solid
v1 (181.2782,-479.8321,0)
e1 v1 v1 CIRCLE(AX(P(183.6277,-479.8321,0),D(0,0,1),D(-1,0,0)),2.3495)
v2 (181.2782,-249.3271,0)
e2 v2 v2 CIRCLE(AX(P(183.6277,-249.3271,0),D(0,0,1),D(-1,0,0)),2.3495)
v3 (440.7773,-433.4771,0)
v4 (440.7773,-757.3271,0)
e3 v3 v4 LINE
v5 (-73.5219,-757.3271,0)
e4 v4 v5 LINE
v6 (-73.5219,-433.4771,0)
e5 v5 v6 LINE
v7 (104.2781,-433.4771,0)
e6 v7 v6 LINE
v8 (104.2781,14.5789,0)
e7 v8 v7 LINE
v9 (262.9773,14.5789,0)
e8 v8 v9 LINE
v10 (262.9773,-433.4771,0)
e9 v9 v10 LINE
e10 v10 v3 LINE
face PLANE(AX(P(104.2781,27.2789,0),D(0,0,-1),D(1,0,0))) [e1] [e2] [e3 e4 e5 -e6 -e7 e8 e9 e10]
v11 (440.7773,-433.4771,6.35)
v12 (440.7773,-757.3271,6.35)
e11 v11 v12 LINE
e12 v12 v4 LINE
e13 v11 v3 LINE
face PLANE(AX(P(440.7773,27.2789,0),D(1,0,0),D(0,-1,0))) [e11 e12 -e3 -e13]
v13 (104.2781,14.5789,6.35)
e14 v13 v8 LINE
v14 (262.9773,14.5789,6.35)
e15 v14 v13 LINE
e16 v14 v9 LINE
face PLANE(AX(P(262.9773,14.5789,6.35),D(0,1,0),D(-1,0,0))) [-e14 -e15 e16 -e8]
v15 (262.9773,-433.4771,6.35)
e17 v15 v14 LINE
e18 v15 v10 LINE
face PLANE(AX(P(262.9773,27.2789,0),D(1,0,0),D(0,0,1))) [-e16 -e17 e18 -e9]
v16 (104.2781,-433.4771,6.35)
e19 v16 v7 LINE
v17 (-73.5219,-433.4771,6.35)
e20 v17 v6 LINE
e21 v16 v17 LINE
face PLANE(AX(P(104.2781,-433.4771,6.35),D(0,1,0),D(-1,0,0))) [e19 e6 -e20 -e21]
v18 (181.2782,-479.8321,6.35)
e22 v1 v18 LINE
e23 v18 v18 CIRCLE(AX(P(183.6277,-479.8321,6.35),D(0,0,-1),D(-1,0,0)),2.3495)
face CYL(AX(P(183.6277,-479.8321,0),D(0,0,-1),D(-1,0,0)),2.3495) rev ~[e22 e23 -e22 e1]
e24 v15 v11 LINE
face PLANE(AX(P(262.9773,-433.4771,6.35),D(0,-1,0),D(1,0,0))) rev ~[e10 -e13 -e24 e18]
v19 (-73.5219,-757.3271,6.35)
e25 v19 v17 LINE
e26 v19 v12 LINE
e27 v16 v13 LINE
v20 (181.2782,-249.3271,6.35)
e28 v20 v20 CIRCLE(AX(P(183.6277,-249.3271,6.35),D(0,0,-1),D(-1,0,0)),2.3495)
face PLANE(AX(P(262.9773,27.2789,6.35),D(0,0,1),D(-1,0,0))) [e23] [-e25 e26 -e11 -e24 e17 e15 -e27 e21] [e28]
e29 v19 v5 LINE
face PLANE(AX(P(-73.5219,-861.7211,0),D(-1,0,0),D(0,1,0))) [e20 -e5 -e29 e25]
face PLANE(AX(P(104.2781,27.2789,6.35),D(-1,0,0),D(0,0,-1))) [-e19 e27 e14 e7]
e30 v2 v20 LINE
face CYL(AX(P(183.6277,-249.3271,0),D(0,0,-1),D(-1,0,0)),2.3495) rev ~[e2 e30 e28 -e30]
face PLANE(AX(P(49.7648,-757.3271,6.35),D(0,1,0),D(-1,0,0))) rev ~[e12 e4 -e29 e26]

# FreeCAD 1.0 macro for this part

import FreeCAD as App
import Part
import Sketcher
from FreeCAD import Vector
Q = App.Units.Quantity

doc = App.newDocument("Part")
body = doc.addObject("PartDesign::Body", "Body")

sketch1 = body.newObject("Sketcher::SketchObject", "Sketch")
sketch1.AttachmentSupport = (doc.getObject("XY_Plane"), [""])
sketch1.MapMode = "FlatFace"
sketch1.addGeometry(Part.LineSegment(Vector(440.7773, 27.2789, 0), Vector(-73.5219, 27.2789, 0)), False)
sketch1.addGeometry(Part.LineSegment(Vector(-73.5219, 27.2789, 0), Vector(-73.5219, -861.7211, 0)), False)
sketch1.addGeometry(Part.LineSegment(Vector(-73.5219, -861.7211, 0), Vector(440.7773, -861.7211, 0)), False)
sketch1.addGeometry(Part.LineSegment(Vector(440.7773, -861.7211, 0), Vector(440.7773, 27.2789, 0)), False)
sketch1.addConstraint(Sketcher.Constraint("Coincident", 0, 2, 1, 1))
sketch1.addConstraint(Sketcher.Constraint("Coincident", 1, 2, 2, 1))
sketch1.addConstraint(Sketcher.Constraint("Coincident", 2, 2, 3, 1))
sketch1.addConstraint(Sketcher.Constraint("Coincident", 3, 2, 0, 1))
sketch1.addConstraint(Sketcher.Constraint("Horizontal", 0))
sketch1.addConstraint(Sketcher.Constraint("Vertical", 1))
sketch1.addConstraint(Sketcher.Constraint("Horizontal", 2))
sketch1.addConstraint(Sketcher.Constraint("Vertical", 3))
sketch1.addConstraint(Sketcher.Constraint("DistanceY", 1, 2, 1, 1, Q("35 in")))
sketch1.addConstraint(Sketcher.Constraint("DistanceX", 0, 2, 0, 1, Q("20.248 in")))
sketch1.addConstraint(Sketcher.Constraint("DistanceX", 0, 2, -1, 1, Q("73.522 mm")))
sketch1.addConstraint(Sketcher.Constraint("DistanceY", -1, 1, 0, 2, Q("27.279 mm")))
pad1 = body.newObject("PartDesign::Pad", "Pad")
pad1.Profile = sketch1
pad1.Length = Q("0.25 in")

sketch2 = body.newObject("Sketcher::SketchObject", "Sketch001")
sketch2.AttachmentSupport = (doc.getObject("XY_Plane"), [""])
sketch2.MapMode = "FlatFace"
sketch2.AttachmentOffset = App.Placement(Vector(0, 0, 0.25 * 25.4), App.Rotation())
sketch2.addGeometry(Part.LineSegment(Vector(104.2781, 27.2789, 0), Vector(-73.5219, 27.2789, 0)), False)
sketch2.addGeometry(Part.LineSegment(Vector(-73.5219, 27.2789, 0), Vector(-73.5219, -433.4771, 0)), False)
sketch2.addGeometry(Part.LineSegment(Vector(-73.5219, -433.4771, 0), Vector(104.2781, -433.4771, 0)), False)
sketch2.addGeometry(Part.LineSegment(Vector(104.2781, -433.4771, 0), Vector(104.2781, 27.2789, 0)), False)
sketch2.addGeometry(Part.LineSegment(Vector(440.7773, -433.4771, 0), Vector(440.7773, 27.2789, 0)), False)
sketch2.addGeometry(Part.LineSegment(Vector(440.7773, 27.2789, 0), Vector(262.9773, 27.2789, 0)), False)
sketch2.addGeometry(Part.LineSegment(Vector(262.9773, 27.2789, 0), Vector(262.9773, -433.4771, 0)), False)
sketch2.addGeometry(Part.LineSegment(Vector(262.9773, -433.4771, 0), Vector(440.7773, -433.4771, 0)), False)
sketch2.addConstraint(Sketcher.Constraint("Coincident", 0, 2, 1, 1))
sketch2.addConstraint(Sketcher.Constraint("Coincident", 1, 2, 2, 1))
sketch2.addConstraint(Sketcher.Constraint("Coincident", 2, 2, 3, 1))
sketch2.addConstraint(Sketcher.Constraint("Coincident", 3, 2, 0, 1))
sketch2.addConstraint(Sketcher.Constraint("Coincident", 4, 2, 5, 1))
sketch2.addConstraint(Sketcher.Constraint("Coincident", 5, 2, 6, 1))
sketch2.addConstraint(Sketcher.Constraint("Coincident", 6, 2, 7, 1))
sketch2.addConstraint(Sketcher.Constraint("Coincident", 7, 2, 4, 1))
sketch2.addConstraint(Sketcher.Constraint("Horizontal", 0))
sketch2.addConstraint(Sketcher.Constraint("Vertical", 1))
sketch2.addConstraint(Sketcher.Constraint("Horizontal", 2))
sketch2.addConstraint(Sketcher.Constraint("Vertical", 3))
sketch2.addConstraint(Sketcher.Constraint("Vertical", 4))
sketch2.addConstraint(Sketcher.Constraint("Horizontal", 5))
sketch2.addConstraint(Sketcher.Constraint("Vertical", 6))
sketch2.addConstraint(Sketcher.Constraint("Horizontal", 7))
sketch2.addConstraint(Sketcher.Constraint("Horizontal", 3, 2, 4, 2))
sketch2.addConstraint(Sketcher.Constraint("Horizontal", 2, 2, 6, 2))
sketch2.addConstraint(Sketcher.Constraint("Equal", 2, 5))
sketch2.addConstraint(Sketcher.Constraint("DistanceX", 0, 2, 0, 1, Q("7 in")))
sketch2.addConstraint(Sketcher.Constraint("DistanceY", 1, 2, 1, 1, Q("18.14 in")))
sketch2.addConstraint(Sketcher.Constraint("DistanceX", 3, 2, 4, 2, Q("13.248 in")))
sketch2.addConstraint(Sketcher.Constraint("DistanceX", 0, 2, -1, 1, Q("73.522 mm")))
sketch2.addConstraint(Sketcher.Constraint("DistanceY", -1, 1, 0, 2, Q("27.279 mm")))
pocket1 = body.newObject("PartDesign::Pocket", "Pocket")
pocket1.Profile = sketch2
pocket1.Length = Q("1 in")

sketch3 = body.newObject("Sketcher::SketchObject", "Sketch002")
sketch3.AttachmentSupport = (doc.getObject("XZ_Plane"), [""])
sketch3.MapMode = "FlatFace"
sketch3.AttachmentOffset = App.Placement(Vector(0, 0, -27.2789), App.Rotation())
sketch3.addGeometry(Part.LineSegment(Vector(262.9773, 0, 0), Vector(104.2781, 0, 0)), False)
sketch3.addGeometry(Part.LineSegment(Vector(104.2781, 0, 0), Vector(104.2781, 6.35, 0)), False)
sketch3.addGeometry(Part.LineSegment(Vector(104.2781, 6.35, 0), Vector(262.9773, 6.35, 0)), False)
sketch3.addGeometry(Part.LineSegment(Vector(262.9773, 6.35, 0), Vector(262.9773, 0, 0)), False)
sketch3.addConstraint(Sketcher.Constraint("Coincident", 0, 2, 1, 1))
sketch3.addConstraint(Sketcher.Constraint("Coincident", 1, 2, 2, 1))
sketch3.addConstraint(Sketcher.Constraint("Coincident", 2, 2, 3, 1))
sketch3.addConstraint(Sketcher.Constraint("Coincident", 3, 2, 0, 1))
sketch3.addConstraint(Sketcher.Constraint("Horizontal", 0))
sketch3.addConstraint(Sketcher.Constraint("Vertical", 1))
sketch3.addConstraint(Sketcher.Constraint("Horizontal", 2))
sketch3.addConstraint(Sketcher.Constraint("Vertical", 3))
sketch3.addConstraint(Sketcher.Constraint("PointOnObject", 0, 2, -1))
sketch3.addConstraint(Sketcher.Constraint("DistanceY", 1, 1, 1, 2, Q("0.25 in")))
sketch3.addConstraint(Sketcher.Constraint("DistanceX", 0, 2, 0, 1, Q("6.248 in")))
sketch3.addConstraint(Sketcher.Constraint("DistanceX", -1, 1, 0, 2, Q("104.278 mm")))
pad2 = body.newObject("PartDesign::Pad", "Pad001")
pad2.Profile = sketch3
pad2.Length = Q("0.25 in")
pad2.Reversed = True

sketch4 = body.newObject("Sketcher::SketchObject", "Sketch003")
sketch4.AttachmentSupport = (doc.getObject("XZ_Plane"), [""])
sketch4.MapMode = "FlatFace"
sketch4.AttachmentOffset = App.Placement(Vector(0, 0, -33.6289), App.Rotation())
sketch4.addGeometry(Part.LineSegment(Vector(262.9773, 0, 0), Vector(104.2781, 0, 0)), False)
sketch4.addGeometry(Part.LineSegment(Vector(104.2781, 0, 0), Vector(104.2781, 6.35, 0)), False)
sketch4.addGeometry(Part.LineSegment(Vector(104.2781, 6.35, 0), Vector(262.9773, 6.35, 0)), False)
sketch4.addGeometry(Part.LineSegment(Vector(262.9773, 6.35, 0), Vector(262.9773, 0, 0)), False)
sketch4.addConstraint(Sketcher.Constraint("Coincident", 0, 2, 1, 1))
sketch4.addConstraint(Sketcher.Constraint("Coincident", 1, 2, 2, 1))
sketch4.addConstraint(Sketcher.Constraint("Coincident", 2, 2, 3, 1))
sketch4.addConstraint(Sketcher.Constraint("Coincident", 3, 2, 0, 1))
sketch4.addConstraint(Sketcher.Constraint("Horizontal", 0))
sketch4.addConstraint(Sketcher.Constraint("Vertical", 1))
sketch4.addConstraint(Sketcher.Constraint("Horizontal", 2))
sketch4.addConstraint(Sketcher.Constraint("Vertical", 3))
sketch4.addConstraint(Sketcher.Constraint("PointOnObject", 0, 2, -1))
sketch4.addConstraint(Sketcher.Constraint("DistanceY", 1, 1, 1, 2, Q("0.25 in")))
sketch4.addConstraint(Sketcher.Constraint("DistanceX", 0, 2, 0, 1, Q("6.248 in")))
sketch4.addConstraint(Sketcher.Constraint("DistanceX", -1, 1, 0, 2, Q("104.278 mm")))
pocket2 = body.newObject("PartDesign::Pocket", "Pocket001")
pocket2.Profile = sketch4
pocket2.Length = Q("0.25 in")
pocket2.Reversed = True

sketch5 = body.newObject("Sketcher::SketchObject", "Sketch004")
sketch5.AttachmentSupport = (doc.getObject("XZ_Plane"), [""])
sketch5.MapMode = "FlatFace"
sketch5.AttachmentOffset = App.Placement(Vector(0, 0, -27.2789), App.Rotation())
sketch5.addGeometry(Part.LineSegment(Vector(104.2781, 0, 0), Vector(104.2781, 6.35, 0)), False)
sketch5.addGeometry(Part.LineSegment(Vector(104.2781, 6.35, 0), Vector(262.9773, 6.35, 0)), False)
sketch5.addGeometry(Part.LineSegment(Vector(262.9773, 6.35, 0), Vector(262.9773, 0, 0)), False)
sketch5.addGeometry(Part.LineSegment(Vector(262.9773, 0, 0), Vector(104.2781, 0, 0)), False)
sketch5.addConstraint(Sketcher.Constraint("Coincident", 0, 2, 1, 1))
sketch5.addConstraint(Sketcher.Constraint("Coincident", 1, 2, 2, 1))
sketch5.addConstraint(Sketcher.Constraint("Coincident", 2, 2, 3, 1))
sketch5.addConstraint(Sketcher.Constraint("Coincident", 3, 2, 0, 1))
sketch5.addConstraint(Sketcher.Constraint("Vertical", 0))
sketch5.addConstraint(Sketcher.Constraint("Horizontal", 1))
sketch5.addConstraint(Sketcher.Constraint("Vertical", 2))
sketch5.addConstraint(Sketcher.Constraint("Horizontal", 3))
sketch5.addConstraint(Sketcher.Constraint("PointOnObject", 2, 2, -1))
sketch5.addConstraint(Sketcher.Constraint("DistanceY", 0, 1, 0, 2, Q("0.25 in")))
sketch5.addConstraint(Sketcher.Constraint("DistanceX", 1, 1, 1, 2, Q("6.248 in")))
sketch5.addConstraint(Sketcher.Constraint("DistanceX", -1, 1, 0, 2, Q("104.278 mm")))
pad3 = body.newObject("PartDesign::Pad", "Pad002")
pad3.Profile = sketch5
pad3.Length = Q("0.25 in")
pad3.Reversed = True

sketch6 = body.newObject("Sketcher::SketchObject", "Sketch005")
sketch6.AttachmentSupport = (doc.getObject("XY_Plane"), [""])
sketch6.MapMode = "FlatFace"
sketch6.addGeometry(Part.Circle(Vector(183.6277, -362.9159, 0), Vector(0, 0, 1), 2.3495), False)
sketch6.addConstraint(Sketcher.Constraint("Diameter", 0, Q("0.185 in")))
sketch6.addConstraint(Sketcher.Constraint("DistanceX", -1, 1, 0, 3, Q("183.6277 mm")))
sketch6.addConstraint(Sketcher.Constraint("DistanceY", 0, 3, -1, 1, Q("362.916 mm")))
pocket3 = body.newObject("PartDesign::Pocket", "Pocket002")
pocket3.Profile = sketch6
pocket3.Length = Q("1 in")
pocket3.Reversed = True

sketch7 = body.newObject("Sketcher::SketchObject", "Sketch006")
sketch7.AttachmentSupport = (doc.getObject("XY_Plane"), [""])
sketch7.MapMode = "FlatFace"
sketch7.addGeometry(Part.Circle(Vector(183.6277, -593.4209, 0), Vector(0, 0, 1), 2.3495), False)
sketch7.addConstraint(Sketcher.Constraint("Diameter", 0, Q("0.185 in")))
sketch7.addConstraint(Sketcher.Constraint("DistanceX", -1, 1, 0, 3, Q("183.6277 mm")))
sketch7.addConstraint(Sketcher.Constraint("DistanceY", 0, 3, -1, 1, Q("593.421 mm")))
pocket4 = body.newObject("PartDesign::Pocket", "Pocket003")
pocket4.Profile = sketch7
pocket4.Length = Q("1 in")
pocket4.Reversed = True

sketch8 = body.newObject("Sketcher::SketchObject", "Sketch007")
sketch8.AttachmentSupport = (doc.getObject("XY_Plane"), [""])
sketch8.MapMode = "FlatFace"
sketch8.addGeometry(Part.Circle(Vector(183.6277, -577.8761, 0), Vector(0, 0, 1), 2.3495), False)
sketch8.addGeometry(Part.Circle(Vector(183.6277, -347.3711, 0), Vector(0, 0, 1), 2.3495), False)
sketch8.addConstraint(Sketcher.Constraint("Equal", 0, 1))
sketch8.addConstraint(Sketcher.Constraint("Vertical", 0, 3, 1, 3))
sketch8.addConstraint(Sketcher.Constraint("Diameter", 0, Q("0.185 in")))
sketch8.addConstraint(Sketcher.Constraint("DistanceY", 0, 3, 1, 3, Q("9.075 in")))
sketch8.addConstraint(Sketcher.Constraint("DistanceX", -1, 1, 0, 3, Q("183.6277 mm")))
sketch8.addConstraint(Sketcher.Constraint("DistanceY", 0, 3, -1, 1, Q("577.876 mm")))
pocket5 = body.newObject("PartDesign::Pocket", "Pocket004")
pocket5.Profile = sketch8
pocket5.Length = Q("1 in")
pocket5.Reversed = True

sketch9 = body.newObject("Sketcher::SketchObject", "Sketch008")
sketch9.AttachmentSupport = (doc.getObject("XY_Plane"), [""])
sketch9.MapMode = "FlatFace"
sketch9.addGeometry(Part.Circle(Vector(183.6277, -593.4209, 0), Vector(0, 0, 1), 2.3495), False)
sketch9.addGeometry(Part.Circle(Vector(183.6277, -362.9159, 0), Vector(0, 0, 1), 2.3495), False)
sketch9.addConstraint(Sketcher.Constraint("Equal", 0, 1))
sketch9.addConstraint(Sketcher.Constraint("Vertical", 0, 3, 1, 3))
sketch9.addConstraint(Sketcher.Constraint("Diameter", 0, Q("0.185 in")))
sketch9.addConstraint(Sketcher.Constraint("DistanceY", 0, 3, 1, 3, Q("9.075 in")))
sketch9.addConstraint(Sketcher.Constraint("DistanceX", -1, 1, 0, 3, Q("183.6277 mm")))
sketch9.addConstraint(Sketcher.Constraint("DistanceY", 0, 3, -1, 1, Q("593.421 mm")))
pad4 = body.newObject("PartDesign::Pad", "Pad003")
pad4.Profile = sketch9
pad4.Length = Q("0.25 in")

sketch10 = body.newObject("Sketcher::SketchObject", "Sketch009")
sketch10.AttachmentSupport = (doc.getObject("XY_Plane"), [""])
sketch10.MapMode = "FlatFace"
sketch10.AttachmentOffset = App.Placement(Vector(0, 0, 0.25 * 25.4), App.Rotation())
sketch10.addGeometry(Part.LineSegment(Vector(440.7773, -757.3271, 0), Vector(-73.5219, -757.3271, 0)), False)
sketch10.addGeometry(Part.LineSegment(Vector(-73.5219, -757.3271, 0), Vector(-73.5219, -861.7211, 0)), False)
sketch10.addGeometry(Part.LineSegment(Vector(-73.5219, -861.7211, 0), Vector(440.7773, -861.7211, 0)), False)
sketch10.addGeometry(Part.LineSegment(Vector(440.7773, -861.7211, 0), Vector(440.7773, -757.3271, 0)), False)
sketch10.addConstraint(Sketcher.Constraint("Coincident", 0, 2, 1, 1))
sketch10.addConstraint(Sketcher.Constraint("Coincident", 1, 2, 2, 1))
sketch10.addConstraint(Sketcher.Constraint("Coincident", 2, 2, 3, 1))
sketch10.addConstraint(Sketcher.Constraint("Coincident", 3, 2, 0, 1))
sketch10.addConstraint(Sketcher.Constraint("Horizontal", 0))
sketch10.addConstraint(Sketcher.Constraint("Vertical", 1))
sketch10.addConstraint(Sketcher.Constraint("Horizontal", 2))
sketch10.addConstraint(Sketcher.Constraint("Vertical", 3))
sketch10.addConstraint(Sketcher.Constraint("DistanceY", 1, 2, 1, 1, Q("4.11 in")))
sketch10.addConstraint(Sketcher.Constraint("DistanceX", 0, 2, 0, 1, Q("20.248 in")))
sketch10.addConstraint(Sketcher.Constraint("DistanceX", 0, 2, -1, 1, Q("73.522 mm")))
sketch10.addConstraint(Sketcher.Constraint("DistanceY", 0, 2, -1, 1, Q("757.327 mm")))
pocket6 = body.newObject("PartDesign::Pocket", "Pocket005")
pocket6.Profile = sketch10
pocket6.Length = Q("0.25 in")

sketch11 = body.newObject("Sketcher::SketchObject", "Sketch010")
sketch11.AttachmentSupport = (doc.getObject("XY_Plane"), [""])
sketch11.MapMode = "FlatFace"
sketch11.addGeometry(Part.Circle(Vector(183.6277, -479.8321, 0), Vector(0, 0, 1), 2.3495), False)
sketch11.addGeometry(Part.Circle(Vector(183.6277, -249.3271, 0), Vector(0, 0, 1), 2.3495), False)
sketch11.addConstraint(Sketcher.Constraint("Equal", 0, 1))
sketch11.addConstraint(Sketcher.Constraint("Vertical", 0, 3, 1, 3))
sketch11.addConstraint(Sketcher.Constraint("Diameter", 0, Q("0.185 in")))
sketch11.addConstraint(Sketcher.Constraint("DistanceY", 0, 3, 1, 3, Q("9.075 in")))
sketch11.addConstraint(Sketcher.Constraint("DistanceX", -1, 1, 0, 3, Q("183.6277 mm")))
sketch11.addConstraint(Sketcher.Constraint("DistanceY", 0, 3, -1, 1, Q("479.832 mm")))
pocket7 = body.newObject("PartDesign::Pocket", "Pocket006")
pocket7.Profile = sketch11
pocket7.Length = Q("0.25 in")
pocket7.Reversed = True

sketch12 = body.newObject("Sketcher::SketchObject", "Sketch011")
sketch12.AttachmentSupport = (doc.getObject("XY_Plane"), [""])
sketch12.MapMode = "FlatFace"
sketch12.addGeometry(Part.Circle(Vector(183.6277, -577.8761, 0), Vector(0, 0, 1), 2.3495), False)
sketch12.addGeometry(Part.Circle(Vector(183.6277, -347.3711, 0), Vector(0, 0, 1), 2.3495), False)
sketch12.addConstraint(Sketcher.Constraint("Equal", 0, 1))
sketch12.addConstraint(Sketcher.Constraint("Vertical", 0, 3, 1, 3))
sketch12.addConstraint(Sketcher.Constraint("Diameter", 0, Q("0.185 in")))
sketch12.addConstraint(Sketcher.Constraint("DistanceY", 0, 3, 1, 3, Q("9.075 in")))
sketch12.addConstraint(Sketcher.Constraint("DistanceX", -1, 1, 0, 3, Q("183.6277 mm")))
sketch12.addConstraint(Sketcher.Constraint("DistanceY", 0, 3, -1, 1, Q("577.876 mm")))
pad5 = body.newObject("PartDesign::Pad", "Pad004")
pad5.Profile = sketch12
pad5.Length = Q("0.25 in")

sketch13 = body.newObject("Sketcher::SketchObject", "Sketch012")
sketch13.AttachmentSupport = (doc.getObject("XY_Plane"), [""])
sketch13.MapMode = "FlatFace"
sketch13.AttachmentOffset = App.Placement(Vector(0, 0, 0.25 * 25.4), App.Rotation())
sketch13.addGeometry(Part.LineSegment(Vector(104.2781, 14.5789, 0), Vector(262.9773, 14.5789, 0)), False)
sketch13.addGeometry(Part.LineSegment(Vector(262.9773, 14.5789, 0), Vector(262.9773, 33.6289, 0)), False)
sketch13.addGeometry(Part.LineSegment(Vector(262.9773, 33.6289, 0), Vector(104.2781, 33.6289, 0)), False)
sketch13.addGeometry(Part.LineSegment(Vector(104.2781, 33.6289, 0), Vector(104.2781, 14.5789, 0)), False)
sketch13.addConstraint(Sketcher.Constraint("Coincident", 0, 2, 1, 1))
sketch13.addConstraint(Sketcher.Constraint("Coincident", 1, 2, 2, 1))
sketch13.addConstraint(Sketcher.Constraint("Coincident", 2, 2, 3, 1))
sketch13.addConstraint(Sketcher.Constraint("Coincident", 3, 2, 0, 1))
sketch13.addConstraint(Sketcher.Constraint("Horizontal", 0))
sketch13.addConstraint(Sketcher.Constraint("Vertical", 1))
sketch13.addConstraint(Sketcher.Constraint("Horizontal", 2))
sketch13.addConstraint(Sketcher.Constraint("Vertical", 3))
sketch13.addConstraint(Sketcher.Constraint("DistanceY", 1, 1, 1, 2, Q("0.75 in")))
sketch13.addConstraint(Sketcher.Constraint("DistanceX", 0, 1, 0, 2, Q("6.248 in")))
sketch13.addConstraint(Sketcher.Constraint("DistanceX", -1, 1, 0, 2, Q("262.9773 mm")))
sketch13.addConstraint(Sketcher.Constraint("DistanceY", -1, 1, 0, 2, Q("14.579 mm")))
pocket8 = body.newObject("PartDesign::Pocket", "Pocket007")
pocket8.Profile = sketch13
pocket8.Length = Q("1 in")

doc.recompute()
